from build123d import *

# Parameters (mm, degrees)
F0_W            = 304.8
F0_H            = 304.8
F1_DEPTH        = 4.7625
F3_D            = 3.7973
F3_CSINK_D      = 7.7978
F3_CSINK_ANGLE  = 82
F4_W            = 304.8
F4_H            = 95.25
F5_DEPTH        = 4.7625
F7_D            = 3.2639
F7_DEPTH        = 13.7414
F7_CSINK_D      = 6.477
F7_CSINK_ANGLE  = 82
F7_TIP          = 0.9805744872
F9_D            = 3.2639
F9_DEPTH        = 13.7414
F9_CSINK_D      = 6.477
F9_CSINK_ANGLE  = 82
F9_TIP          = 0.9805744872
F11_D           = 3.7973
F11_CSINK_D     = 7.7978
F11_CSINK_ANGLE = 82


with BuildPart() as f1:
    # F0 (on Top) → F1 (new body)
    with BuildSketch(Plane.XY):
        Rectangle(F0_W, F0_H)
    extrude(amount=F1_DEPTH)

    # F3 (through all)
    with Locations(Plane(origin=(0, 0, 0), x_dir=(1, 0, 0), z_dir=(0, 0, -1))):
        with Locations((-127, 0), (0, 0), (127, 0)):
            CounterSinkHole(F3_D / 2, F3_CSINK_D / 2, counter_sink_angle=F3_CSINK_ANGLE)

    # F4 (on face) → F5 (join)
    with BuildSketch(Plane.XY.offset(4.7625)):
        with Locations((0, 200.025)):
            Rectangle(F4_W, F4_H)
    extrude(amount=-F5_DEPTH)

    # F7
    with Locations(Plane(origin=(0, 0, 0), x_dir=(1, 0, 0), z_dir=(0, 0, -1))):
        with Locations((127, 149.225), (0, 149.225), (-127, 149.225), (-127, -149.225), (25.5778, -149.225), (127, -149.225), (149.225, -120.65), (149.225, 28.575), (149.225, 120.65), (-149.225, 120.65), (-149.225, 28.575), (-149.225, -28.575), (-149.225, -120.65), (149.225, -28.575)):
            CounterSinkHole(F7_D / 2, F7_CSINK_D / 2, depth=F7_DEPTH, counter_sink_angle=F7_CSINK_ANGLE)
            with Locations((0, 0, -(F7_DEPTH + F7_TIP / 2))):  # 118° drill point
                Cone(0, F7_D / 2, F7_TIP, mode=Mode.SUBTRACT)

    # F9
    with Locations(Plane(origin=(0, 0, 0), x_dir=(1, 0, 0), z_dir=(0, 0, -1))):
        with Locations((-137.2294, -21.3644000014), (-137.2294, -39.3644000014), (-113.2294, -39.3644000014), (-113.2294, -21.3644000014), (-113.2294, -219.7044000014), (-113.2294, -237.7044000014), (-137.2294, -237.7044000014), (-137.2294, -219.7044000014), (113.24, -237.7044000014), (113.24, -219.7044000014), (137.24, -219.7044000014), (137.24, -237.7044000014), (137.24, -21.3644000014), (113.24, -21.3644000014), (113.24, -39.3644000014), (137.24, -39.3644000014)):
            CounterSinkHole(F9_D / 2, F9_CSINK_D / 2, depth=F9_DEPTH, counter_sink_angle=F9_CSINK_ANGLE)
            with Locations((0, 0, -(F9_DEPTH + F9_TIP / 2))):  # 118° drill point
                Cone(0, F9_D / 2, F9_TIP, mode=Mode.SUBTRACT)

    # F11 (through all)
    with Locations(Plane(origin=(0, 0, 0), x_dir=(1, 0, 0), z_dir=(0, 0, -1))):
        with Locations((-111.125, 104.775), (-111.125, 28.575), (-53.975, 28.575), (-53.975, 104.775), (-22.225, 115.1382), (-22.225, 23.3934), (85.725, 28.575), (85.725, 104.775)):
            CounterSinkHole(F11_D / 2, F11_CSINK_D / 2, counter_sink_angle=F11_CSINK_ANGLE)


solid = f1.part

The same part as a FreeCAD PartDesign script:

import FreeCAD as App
import Part
import Sketcher
Q = App.Units.Quantity

doc = App.newDocument("Part")
body = doc.addObject("PartDesign::Body", "Body")

# Sketch on XY plane
sketch1 = body.newObject("Sketcher::SketchObject", "Sketch")
sketch1.AttachmentSupport = (doc.getObject("XY_Plane"), [""])
sketch1.MapMode = "FlatFace"
sketch1.addGeometry(Part.LineSegment(App.Vector(-152, 152, 0), App.Vector(-152, -152, 0)), False)
sketch1.addGeometry(Part.LineSegment(App.Vector(-152, -152, 0), App.Vector(152, -152, 0)), False)
sketch1.addGeometry(Part.LineSegment(App.Vector(152, -152, 0), App.Vector(152, 152, 0)), False)
sketch1.addGeometry(Part.LineSegment(App.Vector(152, 152, 0), App.Vector(-152, 152, 0)), False)
sketch1.addConstraint(Sketcher.Constraint("Coincident", 0, 2, 1, 1))
sketch1.addConstraint(Sketcher.Constraint("Coincident", 1, 2, 2, 1))
sketch1.addConstraint(Sketcher.Constraint("Coincident", 2, 2, 3, 1))
sketch1.addConstraint(Sketcher.Constraint("Coincident", 3, 2, 0, 1))
sketch1.addConstraint(Sketcher.Constraint("Vertical", 0))
sketch1.addConstraint(Sketcher.Constraint("Horizontal", 1))
sketch1.addConstraint(Sketcher.Constraint("Vertical", 2))
sketch1.addConstraint(Sketcher.Constraint("Horizontal", 3))
sketch1.addConstraint(Sketcher.Constraint("Symmetric", 0, 2, 2, 2, -1, 1))
sketch1.addConstraint(Sketcher.Constraint("Equal", 3, 0))
sketch1.addConstraint(Sketcher.Constraint("DistanceX", 1, 1, 1, 2, Q("12 in")))
pad1 = body.newObject("PartDesign::Pad", "Pad")
pad1.Profile = sketch1
pad1.Length = Q("0.1875 in")

# Sketch on XY plane
sketch2 = body.newObject("Sketcher::SketchObject", "Sketch001")
sketch2.AttachmentSupport = (doc.getObject("XY_Plane"), [""])
sketch2.MapMode = "FlatFace"
sketch2.addGeometry(Part.Circle(App.Vector(-127, 0, 0), App.Vector(0, 0, 1), 1.9), False)
sketch2.addGeometry(Part.Circle(App.Vector(0, 0, 0), App.Vector(0, 0, 1), 1.9), False)
sketch2.addGeometry(Part.Circle(App.Vector(127, 0, 0), App.Vector(0, 0, 1), 1.9), False)
sketch2.addConstraint(Sketcher.Constraint("Coincident", 1, 3, -1, 1))
sketch2.addConstraint(Sketcher.Constraint("Equal", 0, 1))
sketch2.addConstraint(Sketcher.Constraint("Equal", 1, 2))
sketch2.addConstraint(Sketcher.Constraint("Symmetric", 0, 3, 2, 3, -1, 1))
sketch2.addConstraint(Sketcher.Constraint("PointOnObject", 0, 3, -1))
sketch2.addConstraint(Sketcher.Constraint("DistanceX", 0, 3, -1, 1, Q("5 in")))
sketch2.addConstraint(Sketcher.Constraint("Diameter", 0, Q("0.1495 in")))
doc.recompute()
hole = body.newObject("PartDesign::Hole", "Hole")
hole.Profile = sketch2
hole.ThreadType = "None"
hole.Diameter = Q("0.1495 in")
hole.DepthType = "ThroughAll"
hole.HoleCutType = "Countersink"
hole.HoleCutDiameter = Q("0.307 in")
hole.HoleCutCountersinkAngle = 82
hole.Reversed = True

# Sketch on XY plane
sketch3 = body.newObject("Sketcher::SketchObject", "Sketch002")
sketch3.AttachmentSupport = (doc.getObject("XY_Plane"), [""])
sketch3.MapMode = "FlatFace"
sketch3.AttachmentOffset = App.Placement(App.Vector(0, 0, 0.1875 * 25.4), App.Rotation())
sketch3.addGeometry(Part.LineSegment(App.Vector(-152, 248, 0), App.Vector(-152, 152, 0)), False)
sketch3.addGeometry(Part.LineSegment(App.Vector(-152, 152, 0), App.Vector(152, 152, 0)), False)
sketch3.addGeometry(Part.LineSegment(App.Vector(152, 152, 0), App.Vector(152, 248, 0)), False)
sketch3.addGeometry(Part.LineSegment(App.Vector(152, 248, 0), App.Vector(-152, 248, 0)), False)
sketch3.addConstraint(Sketcher.Constraint("Coincident", 0, 2, 1, 1))
sketch3.addConstraint(Sketcher.Constraint("Coincident", 1, 2, 2, 1))
sketch3.addConstraint(Sketcher.Constraint("Coincident", 2, 2, 3, 1))
sketch3.addConstraint(Sketcher.Constraint("Coincident", 3, 2, 0, 1))
sketch3.addConstraint(Sketcher.Constraint("Vertical", 0))
sketch3.addConstraint(Sketcher.Constraint("Horizontal", 1))
sketch3.addConstraint(Sketcher.Constraint("Vertical", 2))
sketch3.addConstraint(Sketcher.Constraint("Horizontal", 3))
sketch3.addConstraint(Sketcher.Constraint("DistanceX", 1, 1, 1, 2, Q("12 in")))
sketch3.addConstraint(Sketcher.Constraint("DistanceX", 0, 2, -1, 1, Q("6 in")))
sketch3.addConstraint(Sketcher.Constraint("DistanceY", -1, 1, 0, 2, Q("6 in")))
sketch3.addConstraint(Sketcher.Constraint("DistanceY", 0, 2, 0, 1, Q("3.75 in")))
pad2 = body.newObject("PartDesign::Pad", "Pad001")
pad2.Profile = sketch3
pad2.Length = Q("0.1875 in")
pad2.Reversed = True

# Sketch on XY plane
sketch4 = body.newObject("Sketcher::SketchObject", "Sketch003")
sketch4.AttachmentSupport = (doc.getObject("XY_Plane"), [""])
sketch4.MapMode = "FlatFace"
sketch4.addGeometry(Part.Circle(App.Vector(127, -149.2, 0), App.Vector(0, 0, 1), 1.6), False)
sketch4.addGeometry(Part.Circle(App.Vector(0, -149.2, 0), App.Vector(0, 0, 1), 1.6), False)
sketch4.addGeometry(Part.Circle(App.Vector(-127, -149.2, 0), App.Vector(0, 0, 1), 1.6), False)
sketch4.addGeometry(Part.Circle(App.Vector(-127, 149.2, 0), App.Vector(0, 0, 1), 1.6), False)
sketch4.addGeometry(Part.Circle(App.Vector(25.6, 149.2, 0), App.Vector(0, 0, 1), 1.6), False)
sketch4.addGeometry(Part.Circle(App.Vector(127, 149.2, 0), App.Vector(0, 0, 1), 1.6), False)
sketch4.addGeometry(Part.Circle(App.Vector(149.2, 120.7, 0), App.Vector(0, 0, 1), 1.6), False)
sketch4.addGeometry(Part.Circle(App.Vector(149.2, -28.6, 0), App.Vector(0, 0, 1), 1.6), False)
sketch4.addGeometry(Part.Circle(App.Vector(149.2, -120.7, 0), App.Vector(0, 0, 1), 1.6), False)
sketch4.addGeometry(Part.Circle(App.Vector(-149.2, -120.7, 0), App.Vector(0, 0, 1), 1.6), False)
sketch4.addGeometry(Part.Circle(App.Vector(-149.2, -28.6, 0), App.Vector(0, 0, 1), 1.6), False)
sketch4.addGeometry(Part.Circle(App.Vector(-149.2, 28.6, 0), App.Vector(0, 0, 1), 1.6), False)
sketch4.addGeometry(Part.Circle(App.Vector(-149.2, 120.7, 0), App.Vector(0, 0, 1), 1.6), False)
sketch4.addGeometry(Part.Circle(App.Vector(149.2, 28.6, 0), App.Vector(0, 0, 1), 1.6), False)
sketch4.addConstraint(Sketcher.Constraint("Equal", 0, 1))
sketch4.addConstraint(Sketcher.Constraint("Equal", 1, 2))
sketch4.addConstraint(Sketcher.Constraint("Equal", 2, 3))
sketch4.addConstraint(Sketcher.Constraint("Equal", 3, 4))
sketch4.addConstraint(Sketcher.Constraint("Equal", 4, 5))
sketch4.addConstraint(Sketcher.Constraint("Equal", 5, 6))
sketch4.addConstraint(Sketcher.Constraint("Equal", 6, 7))
sketch4.addConstraint(Sketcher.Constraint("Equal", 7, 8))
sketch4.addConstraint(Sketcher.Constraint("Equal", 8, 9))
sketch4.addConstraint(Sketcher.Constraint("Equal", 9, 10))
sketch4.addConstraint(Sketcher.Constraint("Equal", 10, 11))
sketch4.addConstraint(Sketcher.Constraint("Equal", 11, 12))
sketch4.addConstraint(Sketcher.Constraint("Equal", 12, 13))
sketch4.addConstraint(Sketcher.Constraint("Symmetric", 0, 3, 3, 3, -1, 1))
sketch4.addConstraint(Sketcher.Constraint("Symmetric", 2, 3, 5, 3, -1, 1))
sketch4.addConstraint(Sketcher.Constraint("Symmetric", 6, 3, 9, 3, -1, 1))
sketch4.addConstraint(Sketcher.Constraint("Symmetric", 7, 3, 11, 3, -1, 1))
sketch4.addConstraint(Sketcher.Constraint("Symmetric", 8, 3, 12, 3, -1, 1))
sketch4.addConstraint(Sketcher.Constraint("Symmetric", 10, 3, 13, 3, -1, 1))
sketch4.addConstraint(Sketcher.Constraint("Symmetric", 0, 3, 2, 3, -2))
sketch4.addConstraint(Sketcher.Constraint("Symmetric", 8, 3, 9, 3, -2))
sketch4.addConstraint(Sketcher.Constraint("Symmetric", 7, 3, 10, 3, -2))
sketch4.addConstraint(Sketcher.Constraint("PointOnObject", 1, 3, -2))
sketch4.addConstraint(Sketcher.Constraint("Horizontal", 0, 3, 1, 3))
sketch4.addConstraint(Sketcher.Constraint("Horizontal", 3, 3, 4, 3))
sketch4.addConstraint(Sketcher.Constraint("Vertical", 6, 3, 7, 3))
sketch4.addConstraint(Sketcher.Constraint("DistanceX", -1, 1, 0, 3, Q("5 in")))
sketch4.addConstraint(Sketcher.Constraint("DistanceY", 7, 3, 5, 3, Q("7 in")))
sketch4.addConstraint(Sketcher.Constraint("Diameter", 0, Q("0.1285 in")))
sketch4.addConstraint(Sketcher.Constraint("DistanceY", 8, 3, 6, 3, Q("9.5 in")))
sketch4.addConstraint(Sketcher.Constraint("DistanceY", 2, 3, 3, 3, Q("11.75 in")))
sketch4.addConstraint(Sketcher.Constraint("DistanceX", 9, 3, 8, 3, Q("11.75 in")))
sketch4.addConstraint(Sketcher.Constraint("DistanceX", -1, 1, 4, 3, Q("1.007 in")))
doc.recompute()
hole2 = body.newObject("PartDesign::Hole", "Hole001")
hole2.Profile = sketch4
hole2.ThreadType = "None"
hole2.Diameter = Q("0.1285 in")
hole2.DepthType = "Dimension"
hole2.Depth = Q("0.541 in")
hole2.DrillPoint = "Angled"
hole2.DrillPointAngle = 118
hole2.HoleCutType = "Countersink"
hole2.HoleCutDiameter = Q("0.255 in")
hole2.HoleCutCountersinkAngle = 82
hole2.Reversed = True

# Sketch on XY plane
sketch5 = body.newObject("Sketcher::SketchObject", "Sketch004")
sketch5.AttachmentSupport = (doc.getObject("XY_Plane"), [""])
sketch5.MapMode = "FlatFace"
sketch5.addGeometry(Part.Circle(App.Vector(-137.2, 21.4, 0), App.Vector(0, 0, 1), 1.6), False)
sketch5.addGeometry(Part.Circle(App.Vector(-137.2, 39.4, 0), App.Vector(0, 0, 1), 1.6), False)
sketch5.addGeometry(Part.Circle(App.Vector(-113.2, 39.4, 0), App.Vector(0, 0, 1), 1.6), False)
sketch5.addGeometry(Part.Circle(App.Vector(-113.2, 21.4, 0), App.Vector(0, 0, 1), 1.6), False)
sketch5.addGeometry(Part.Circle(App.Vector(-113.2, 219.7, 0), App.Vector(0, 0, 1), 1.6), False)
sketch5.addGeometry(Part.Circle(App.Vector(-113.2, 237.7, 0), App.Vector(0, 0, 1), 1.6), False)
sketch5.addGeometry(Part.Circle(App.Vector(-137.2, 237.7, 0), App.Vector(0, 0, 1), 1.6), False)
sketch5.addGeometry(Part.Circle(App.Vector(-137.2, 219.7, 0), App.Vector(0, 0, 1), 1.6), False)
sketch5.addGeometry(Part.Circle(App.Vector(113.2, 237.7, 0), App.Vector(0, 0, 1), 1.6), False)
sketch5.addGeometry(Part.Circle(App.Vector(113.2, 219.7, 0), App.Vector(0, 0, 1), 1.6), False)
sketch5.addGeometry(Part.Circle(App.Vector(137.2, 219.7, 0), App.Vector(0, 0, 1), 1.6), False)
sketch5.addGeometry(Part.Circle(App.Vector(137.2, 237.7, 0), App.Vector(0, 0, 1), 1.6), False)
sketch5.addGeometry(Part.Circle(App.Vector(137.2, 21.4, 0), App.Vector(0, 0, 1), 1.6), False)
sketch5.addGeometry(Part.Circle(App.Vector(113.2, 21.4, 0), App.Vector(0, 0, 1), 1.6), False)
sketch5.addGeometry(Part.Circle(App.Vector(113.2, 39.4, 0), App.Vector(0, 0, 1), 1.6), False)
sketch5.addGeometry(Part.Circle(App.Vector(137.2, 39.4, 0), App.Vector(0, 0, 1), 1.6), False)
sketch5.addConstraint(Sketcher.Constraint("Equal", 0, 1))
sketch5.addConstraint(Sketcher.Constraint("Equal", 1, 2))
sketch5.addConstraint(Sketcher.Constraint("Equal", 2, 3))
sketch5.addConstraint(Sketcher.Constraint("Equal", 3, 4))
sketch5.addConstraint(Sketcher.Constraint("Equal", 4, 5))
sketch5.addConstraint(Sketcher.Constraint("Equal", 5, 6))
sketch5.addConstraint(Sketcher.Constraint("Equal", 6, 7))
sketch5.addConstraint(Sketcher.Constraint("Equal", 7, 8))
sketch5.addConstraint(Sketcher.Constraint("Equal", 8, 9))
sketch5.addConstraint(Sketcher.Constraint("Equal", 9, 10))
sketch5.addConstraint(Sketcher.Constraint("Equal", 10, 11))
sketch5.addConstraint(Sketcher.Constraint("Equal", 11, 12))
sketch5.addConstraint(Sketcher.Constraint("Equal", 12, 13))
sketch5.addConstraint(Sketcher.Constraint("Equal", 13, 14))
sketch5.addConstraint(Sketcher.Constraint("Equal", 14, 15))
sketch5.addConstraint(Sketcher.Constraint("Horizontal", 1, 3, 2, 3))
sketch5.addConstraint(Sketcher.Constraint("Horizontal", 0, 3, 3, 3))
sketch5.addConstraint(Sketcher.Constraint("Horizontal", 5, 3, 6, 3))
sketch5.addConstraint(Sketcher.Constraint("Horizontal", 4, 3, 7, 3))
sketch5.addConstraint(Sketcher.Constraint("Horizontal", 6, 3, 8, 3))
sketch5.addConstraint(Sketcher.Constraint("Horizontal", 7, 3, 9, 3))
sketch5.addConstraint(Sketcher.Constraint("Horizontal", 9, 3, 10, 3))
sketch5.addConstraint(Sketcher.Constraint("Horizontal", 8, 3, 11, 3))
sketch5.addConstraint(Sketcher.Constraint("Horizontal", 3, 3, 12, 3))
sketch5.addConstraint(Sketcher.Constraint("Horizontal", 12, 3, 13, 3))
sketch5.addConstraint(Sketcher.Constraint("Horizontal", 2, 3, 14, 3))
sketch5.addConstraint(Sketcher.Constraint("Horizontal", 14, 3, 15, 3))
sketch5.addConstraint(Sketcher.Constraint("Vertical", 0, 3, 1, 3))
sketch5.addConstraint(Sketcher.Constraint("Vertical", 2, 3, 3, 3))
sketch5.addConstraint(Sketcher.Constraint("Vertical", 3, 3, 4, 3))
sketch5.addConstraint(Sketcher.Constraint("Vertical", 4, 3, 5, 3))
sketch5.addConstraint(Sketcher.Constraint("Vertical", 1, 3, 6, 3))
sketch5.addConstraint(Sketcher.Constraint("Vertical", 6, 3, 7, 3))
sketch5.addConstraint(Sketcher.Constraint("Vertical", 8, 3, 9, 3))
sketch5.addConstraint(Sketcher.Constraint("Vertical", 10, 3, 11, 3))
sketch5.addConstraint(Sketcher.Constraint("Vertical", 11, 3, 12, 3))
sketch5.addConstraint(Sketcher.Constraint("Vertical", 9, 3, 13, 3))
sketch5.addConstraint(Sketcher.Constraint("Vertical", 13, 3, 14, 3))
sketch5.addConstraint(Sketcher.Constraint("Vertical", 12, 3, 15, 3))
sketch5.addConstraint(Sketcher.Constraint("Diameter", 0, Q("0.1285 in")))
sketch5.addConstraint(Sketcher.Constraint("DistanceY", 2, 3, 4, 3, Q("7.1 in")))
sketch5.addConstraint(Sketcher.Constraint("DistanceX", 6, 3, 8, 3, Q("9.861 in")))
sketch5.addConstraint(Sketcher.Constraint("DistanceX", 4, 3, 10, 3, Q("9.861 in")))
sketch5.addConstraint(Sketcher.Constraint("DistanceX", 0, 3, -1, 1, Q("137.2294 mm")))
sketch5.addConstraint(Sketcher.Constraint("DistanceY", -1, 1, 0, 3, Q("21.3644 mm")))
sketch5.addConstraint(Sketcher.Constraint("DistanceY", -1, 1, 1, 3, Q("39.3644 mm")))
sketch5.addConstraint(Sketcher.Constraint("DistanceX", 2, 3, -1, 1, Q("113.2294 mm")))
sketch5.addConstraint(Sketcher.Constraint("DistanceY", -1, 1, 5, 3, Q("237.7044 mm")))
doc.recompute()
hole3 = body.newObject("PartDesign::Hole", "Hole002")
hole3.Profile = sketch5
hole3.ThreadType = "None"
hole3.Diameter = Q("0.1285 in")
hole3.DepthType = "Dimension"
hole3.Depth = Q("0.541 in")
hole3.DrillPoint = "Angled"
hole3.DrillPointAngle = 118
hole3.HoleCutType = "Countersink"
hole3.HoleCutDiameter = Q("0.255 in")
hole3.HoleCutCountersinkAngle = 82
hole3.Reversed = True

# Sketch on XY plane
sketch6 = body.newObject("Sketcher::SketchObject", "Sketch005")
sketch6.AttachmentSupport = (doc.getObject("XY_Plane"), [""])
sketch6.MapMode = "FlatFace"
sketch6.addGeometry(Part.Circle(App.Vector(-111.1, -104.8, 0), App.Vector(0, 0, 1), 1.9), False)
sketch6.addGeometry(Part.Circle(App.Vector(-111.1, -28.6, 0), App.Vector(0, 0, 1), 1.9), False)
sketch6.addGeometry(Part.Circle(App.Vector(-54, -28.6, 0), App.Vector(0, 0, 1), 1.9), False)
sketch6.addGeometry(Part.Circle(App.Vector(-54, -104.8, 0), App.Vector(0, 0, 1), 1.9), False)
sketch6.addGeometry(Part.Circle(App.Vector(-22.2, -115.1, 0), App.Vector(0, 0, 1), 1.9), False)
sketch6.addGeometry(Part.Circle(App.Vector(-22.2, -23.4, 0), App.Vector(0, 0, 1), 1.9), False)
sketch6.addGeometry(Part.Circle(App.Vector(85.7, -28.6, 0), App.Vector(0, 0, 1), 1.9), False)
sketch6.addGeometry(Part.Circle(App.Vector(85.7, -104.8, 0), App.Vector(0, 0, 1), 1.9), False)
sketch6.addConstraint(Sketcher.Constraint("Equal", 0, 1))
sketch6.addConstraint(Sketcher.Constraint("Equal", 1, 2))
sketch6.addConstraint(Sketcher.Constraint("Equal", 2, 3))
sketch6.addConstraint(Sketcher.Constraint("Equal", 3, 4))
sketch6.addConstraint(Sketcher.Constraint("Equal", 4, 5))
sketch6.addConstraint(Sketcher.Constraint("Equal", 5, 6))
sketch6.addConstraint(Sketcher.Constraint("Equal", 6, 7))
sketch6.addConstraint(Sketcher.Constraint("Horizontal", 1, 3, 2, 3))
sketch6.addConstraint(Sketcher.Constraint("Horizontal", 0, 3, 3, 3))
sketch6.addConstraint(Sketcher.Constraint("Horizontal", 2, 3, 6, 3))
sketch6.addConstraint(Sketcher.Constraint("Horizontal", 3, 3, 7, 3))
sketch6.addConstraint(Sketcher.Constraint("Vertical", 0, 3, 1, 3))
sketch6.addConstraint(Sketcher.Constraint("Vertical", 2, 3, 3, 3))
sketch6.addConstraint(Sketcher.Constraint("Vertical", 4, 3, 5, 3))
sketch6.addConstraint(Sketcher.Constraint("Vertical", 6, 3, 7, 3))
sketch6.addConstraint(Sketcher.Constraint("DistanceY", 0, 3, 1, 3, Q("3 in")))
sketch6.addConstraint(Sketcher.Constraint("Diameter", 0, Q("0.1495 in")))
sketch6.addConstraint(Sketcher.Constraint("DistanceX", 0, 3, 4, 3, Q("3.5 in")))
sketch6.addConstraint(Sketcher.Constraint("DistanceX", 2, 3, 6, 3, Q("5.5 in")))
sketch6.addConstraint(Sketcher.Constraint("DistanceX", 1, 3, 2, 3, Q("2.25 in")))
sketch6.addConstraint(Sketcher.Constraint("DistanceX", 0, 3, -1, 1, Q("4.375 in")))
sketch6.addConstraint(Sketcher.Constraint("DistanceY", 0, 3, -1, 1, Q("4.125 in")))
sketch6.addConstraint(Sketcher.Constraint("DistanceY", 4, 3, -1, 1, Q("4.533 in")))
sketch6.addConstraint(Sketcher.Constraint("DistanceY", 5, 3, -1, 1, Q("0.921 in")))
doc.recompute()
hole4 = body.newObject("PartDesign::Hole", "Hole003")
hole4.Profile = sketch6
hole4.ThreadType = "None"
hole4.Diameter = Q("0.1495 in")
hole4.DepthType = "ThroughAll"
hole4.HoleCutType = "Countersink"
hole4.HoleCutDiameter = Q("0.307 in")
hole4.HoleCutCountersinkAngle = 82
hole4.Reversed = True

doc.recompute()
